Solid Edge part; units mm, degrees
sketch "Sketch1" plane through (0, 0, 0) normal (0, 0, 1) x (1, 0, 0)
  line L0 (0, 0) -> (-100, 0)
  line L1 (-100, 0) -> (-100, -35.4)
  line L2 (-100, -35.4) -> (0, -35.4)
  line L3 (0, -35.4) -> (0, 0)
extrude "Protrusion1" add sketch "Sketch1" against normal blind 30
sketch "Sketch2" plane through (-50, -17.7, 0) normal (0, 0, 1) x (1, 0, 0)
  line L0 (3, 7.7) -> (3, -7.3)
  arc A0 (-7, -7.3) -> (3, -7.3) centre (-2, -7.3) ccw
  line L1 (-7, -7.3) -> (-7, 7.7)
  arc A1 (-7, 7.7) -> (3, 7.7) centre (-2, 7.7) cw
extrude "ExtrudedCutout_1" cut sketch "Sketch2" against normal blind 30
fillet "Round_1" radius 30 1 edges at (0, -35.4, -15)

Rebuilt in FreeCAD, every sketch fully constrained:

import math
import FreeCAD as App
import Part
import Sketcher

V = App.Vector


def edges_at(feature, points):
    """Names of the edges that pass closest to the given points."""
    edges = feature.Shape.Edges
    near = lambda p: min(range(len(edges)), key=lambda i: edges[i].distToShape(Part.Vertex(*p))[0])
    return sorted({f"Edge{near(p) + 1}" for p in points})

doc = App.newDocument("Part")
body = doc.addObject("PartDesign::Body", "Body")

# Sketch on XY plane
sketch1 = body.newObject("Sketcher::SketchObject", "Sketch")
sketch1.AttachmentSupport = (doc.getObject("XY_Plane"), [""])
sketch1.MapMode = "FlatFace"
sketch1.addGeometry([
    Part.LineSegment(V(0, -35.4, 0), V(0, 0, 0)),
    Part.LineSegment(V(0, 0, 0), V(-100, 0, 0)),
    Part.LineSegment(V(-100, 0, 0), V(-100, -35.4, 0)),
    Part.LineSegment(V(-100, -35.4, 0), V(0, -35.4, 0)),
], False)
sketch1.addConstraint([
    Sketcher.Constraint("Coincident", 0, 2, 1, 1),
    Sketcher.Constraint("Coincident", 1, 2, 2, 1),
    Sketcher.Constraint("Coincident", 2, 2, 3, 1),
    Sketcher.Constraint("Coincident", 3, 2, 0, 1),
    Sketcher.Constraint("Vertical", 0),
    Sketcher.Constraint("Horizontal", 1),
    Sketcher.Constraint("Vertical", 2),
    Sketcher.Constraint("Horizontal", 3),
    Sketcher.Constraint("Coincident", 0, 2, -1, 1),
    Sketcher.Constraint("DistanceX", 1, 2, 1, 1, 100.0),
    Sketcher.Constraint("DistanceY", 0, 1, 0, 2, 35.4),
])
pad1 = body.newObject("PartDesign::Pad", "Pad")
pad1.Profile = sketch1
pad1.Length = 30
pad1.Reversed = True

# Sketch on XY plane
sketch2 = body.newObject("Sketcher::SketchObject", "Sketch001")
sketch2.AttachmentSupport = (doc.getObject("XY_Plane"), [""])
sketch2.MapMode = "FlatFace"
sketch2.addGeometry([
    Part.LineSegment(V(-47, -25, 0), V(-47, -10, 0)),
    Part.ArcOfCircle(Part.Circle(V(-52, -10, 0), V(0, 0, 1), 5), math.radians(0), math.radians(180)),
    Part.LineSegment(V(-57, -10, 0), V(-57, -25, 0)),
    Part.ArcOfCircle(Part.Circle(V(-52, -25, 0), V(0, 0, 1), 5), math.radians(180), math.radians(360)),
], False)
sketch2.addConstraint([
    Sketcher.Constraint("Tangent", 0, 2, 1, 1),
    Sketcher.Constraint("Tangent", 1, 2, 2, 1),
    Sketcher.Constraint("Tangent", 2, 2, 3, 1),
    Sketcher.Constraint("Tangent", 3, 2, 0, 1),
    Sketcher.Constraint("Vertical", 0),
    Sketcher.Constraint("Vertical", 2),
    Sketcher.Constraint("Radius", 1, 5.0),
    Sketcher.Constraint("DistanceY", 0, 1, 0, 2, 15.0),
    Sketcher.Constraint("DistanceX", 1, 3, -1, 1, 52.0),
    Sketcher.Constraint("DistanceY", 1, 3, -1, 1, 10.0),
])
pocket1 = body.newObject("PartDesign::Pocket", "Pocket")
pocket1.Profile = sketch2
pocket1.Length = 30
doc.recompute()

fillet = body.newObject("PartDesign::Fillet", "Fillet")
fillet.Base = (pocket1, edges_at(pocket1, [(0, -35.4, -15)]))
fillet.Radius = 30

doc.recompute()
